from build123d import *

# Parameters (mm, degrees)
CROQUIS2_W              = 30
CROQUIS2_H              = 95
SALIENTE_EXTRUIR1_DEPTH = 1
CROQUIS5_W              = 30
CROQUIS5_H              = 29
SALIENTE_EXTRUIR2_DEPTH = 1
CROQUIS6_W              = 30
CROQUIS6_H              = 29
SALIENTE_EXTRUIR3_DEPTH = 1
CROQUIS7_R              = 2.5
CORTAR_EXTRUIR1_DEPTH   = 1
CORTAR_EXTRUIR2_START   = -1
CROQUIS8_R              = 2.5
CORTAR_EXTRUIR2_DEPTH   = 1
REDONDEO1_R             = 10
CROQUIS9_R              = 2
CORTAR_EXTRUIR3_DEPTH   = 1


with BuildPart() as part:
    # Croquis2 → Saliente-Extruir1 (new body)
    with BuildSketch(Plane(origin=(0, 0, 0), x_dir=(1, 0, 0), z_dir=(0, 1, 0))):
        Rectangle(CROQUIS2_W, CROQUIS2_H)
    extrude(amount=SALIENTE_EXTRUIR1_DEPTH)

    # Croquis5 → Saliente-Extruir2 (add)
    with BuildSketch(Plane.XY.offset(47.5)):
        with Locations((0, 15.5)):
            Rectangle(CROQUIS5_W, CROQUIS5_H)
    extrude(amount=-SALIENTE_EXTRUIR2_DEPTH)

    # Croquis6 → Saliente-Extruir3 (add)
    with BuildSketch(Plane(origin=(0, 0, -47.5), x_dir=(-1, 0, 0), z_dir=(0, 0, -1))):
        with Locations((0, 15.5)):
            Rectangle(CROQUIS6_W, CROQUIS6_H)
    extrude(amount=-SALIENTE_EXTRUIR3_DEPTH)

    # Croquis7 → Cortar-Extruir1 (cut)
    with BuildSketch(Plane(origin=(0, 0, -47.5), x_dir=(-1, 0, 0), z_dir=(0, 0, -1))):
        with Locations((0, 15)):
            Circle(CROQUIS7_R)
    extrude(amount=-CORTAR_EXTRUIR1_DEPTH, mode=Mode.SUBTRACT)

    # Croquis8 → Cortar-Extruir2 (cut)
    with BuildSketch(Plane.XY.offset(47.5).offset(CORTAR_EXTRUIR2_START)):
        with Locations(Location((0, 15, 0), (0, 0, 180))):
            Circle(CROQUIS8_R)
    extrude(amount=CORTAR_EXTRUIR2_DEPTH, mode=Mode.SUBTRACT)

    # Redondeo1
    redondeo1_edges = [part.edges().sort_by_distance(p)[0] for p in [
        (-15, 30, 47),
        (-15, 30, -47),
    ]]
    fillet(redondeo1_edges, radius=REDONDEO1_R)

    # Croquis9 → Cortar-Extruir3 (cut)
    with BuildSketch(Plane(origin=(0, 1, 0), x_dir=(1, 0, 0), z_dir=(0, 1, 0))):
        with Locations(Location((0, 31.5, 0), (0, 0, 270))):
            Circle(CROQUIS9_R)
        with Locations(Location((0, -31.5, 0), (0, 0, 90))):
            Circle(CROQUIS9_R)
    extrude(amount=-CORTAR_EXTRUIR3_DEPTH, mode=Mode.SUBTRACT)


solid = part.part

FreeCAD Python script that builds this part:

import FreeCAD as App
import Part
import Sketcher

V = App.Vector


def edges_at(feature, points):
    """Names of the edges that pass closest to the given points."""
    edges = feature.Shape.Edges
    near = lambda p: min(range(len(edges)), key=lambda i: edges[i].distToShape(Part.Vertex(*p))[0])
    return sorted({f"Edge{near(p) + 1}" for p in points})

doc = App.newDocument("Part")
params = doc.addObject("Spreadsheet::Sheet", "Params")
for row, (alias, value) in enumerate([
    ("sketch1_width", "30 mm"),
    ("sketch1_height", "95 mm"),
    ("pad1_length", "1 mm"),
    ("sketch2_width", "30 mm"),
    ("sketch2_height", "29 mm"),
    ("pad2_length", "1 mm"),
    ("sketch3_width", "30 mm"),
    ("sketch3_height", "29 mm"),
    ("pad3_length", "1 mm"),
    ("sketch4_diameter", "5 mm"),
    ("pocket1_length", "1 mm"),
    ("sketch5_diameter", "5 mm"),
    ("pocket2_length", "1 mm"),
    ("fillet_radius", "10 mm"),
    ("sketch6_diameter", "4 mm"),
    ("pocket3_length", "1 mm"),
], start=1):
    params.set(f"A{row}", alias)
    params.set(f"B{row}", "=" + value)
    params.setAlias(f"B{row}", alias)

body = doc.addObject("PartDesign::Body", "Body")

sketch1 = body.newObject("Sketcher::SketchObject", "Sketch")
sketch1.AttachmentSupport = (doc.getObject("XZ_Plane"), [""])
sketch1.MapMode = "FlatFace"
sketch1.addGeometry([
    Part.LineSegment(V(-15, -48, 0), V(-15, 48, 0)),
    Part.LineSegment(V(-15, 48, 0), V(15, 48, 0)),
    Part.LineSegment(V(15, 48, 0), V(15, -48, 0)),
    Part.LineSegment(V(15, -48, 0), V(-15, -48, 0)),
], False)
sketch1.addConstraint([
    Sketcher.Constraint("Coincident", 0, 2, 1, 1),
    Sketcher.Constraint("Coincident", 1, 2, 2, 1),
    Sketcher.Constraint("Coincident", 2, 2, 3, 1),
    Sketcher.Constraint("Coincident", 3, 2, 0, 1),
    Sketcher.Constraint("Vertical", 0),
    Sketcher.Constraint("Horizontal", 1),
    Sketcher.Constraint("Vertical", 2),
    Sketcher.Constraint("Horizontal", 3),
    Sketcher.Constraint("Symmetric", 0, 2, 2, 2, -1, 1),
    Sketcher.Constraint("DistanceX", 1, 1, 1, 2, 30.0),
    Sketcher.Constraint("DistanceY", 0, 1, 0, 2, 95.0),
])
sketch1.setExpression("Constraints[9]", "Params.sketch1_width")
sketch1.setExpression("Constraints[10]", "Params.sketch1_height")
pad1 = body.newObject("PartDesign::Pad", "Pad")
pad1.Profile = sketch1
pad1.setExpression("Length", "Params.pad1_length")
pad1.Reversed = True

sketch2 = body.newObject("Sketcher::SketchObject", "Sketch001")
sketch2.AttachmentSupport = (doc.getObject("XY_Plane"), [""])
sketch2.MapMode = "FlatFace"
sketch2.AttachmentOffset = App.Placement(V(0, 0, 47.5), App.Rotation())
sketch2.addGeometry([
    Part.LineSegment(V(-15, 30, 0), V(-15, 1, 0)),
    Part.LineSegment(V(-15, 1, 0), V(15, 1, 0)),
    Part.LineSegment(V(15, 1, 0), V(15, 30, 0)),
    Part.LineSegment(V(15, 30, 0), V(-15, 30, 0)),
], False)
sketch2.addConstraint([
    Sketcher.Constraint("Coincident", 0, 2, 1, 1),
    Sketcher.Constraint("Coincident", 1, 2, 2, 1),
    Sketcher.Constraint("Coincident", 2, 2, 3, 1),
    Sketcher.Constraint("Coincident", 3, 2, 0, 1),
    Sketcher.Constraint("Vertical", 0),
    Sketcher.Constraint("Horizontal", 1),
    Sketcher.Constraint("Vertical", 2),
    Sketcher.Constraint("Horizontal", 3),
    Sketcher.Constraint("DistanceX", 1, 1, 1, 2, 30.0),
    Sketcher.Constraint("DistanceY", 0, 2, 0, 1, 29.0),
    Sketcher.Constraint("DistanceX", 0, 2, -1, 1, 15.0),
    Sketcher.Constraint("DistanceY", -1, 1, 0, 2, 1.0),
])
sketch2.setExpression("Constraints[8]", "Params.sketch2_width")
sketch2.setExpression("Constraints[9]", "Params.sketch2_height")
pad2 = body.newObject("PartDesign::Pad", "Pad001")
pad2.Profile = sketch2
pad2.setExpression("Length", "Params.pad2_length")
pad2.Reversed = True

sketch3 = body.newObject("Sketcher::SketchObject", "Sketch002")
sketch3.AttachmentSupport = (doc.getObject("XY_Plane"), [""])
sketch3.MapMode = "FlatFace"
sketch3.AttachmentOffset = App.Placement(V(0, 0, -47.5), App.Rotation())
sketch3.addGeometry([
    Part.LineSegment(V(15, 30, 0), V(15, 1, 0)),
    Part.LineSegment(V(15, 1, 0), V(-15, 1, 0)),
    Part.LineSegment(V(-15, 1, 0), V(-15, 30, 0)),
    Part.LineSegment(V(-15, 30, 0), V(15, 30, 0)),
], False)
sketch3.addConstraint([
    Sketcher.Constraint("Coincident", 0, 2, 1, 1),
    Sketcher.Constraint("Coincident", 1, 2, 2, 1),
    Sketcher.Constraint("Coincident", 2, 2, 3, 1),
    Sketcher.Constraint("Coincident", 3, 2, 0, 1),
    Sketcher.Constraint("Vertical", 0),
    Sketcher.Constraint("Horizontal", 1),
    Sketcher.Constraint("Vertical", 2),
    Sketcher.Constraint("Horizontal", 3),
    Sketcher.Constraint("DistanceX", 1, 2, 1, 1, 30.0),
    Sketcher.Constraint("DistanceY", 0, 2, 0, 1, 29.0),
    Sketcher.Constraint("DistanceX", -1, 1, 0, 2, 15.0),
    Sketcher.Constraint("DistanceY", -1, 1, 0, 2, 1.0),
])
sketch3.setExpression("Constraints[8]", "Params.sketch3_width")
sketch3.setExpression("Constraints[9]", "Params.sketch3_height")
pad3 = body.newObject("PartDesign::Pad", "Pad002")
pad3.Profile = sketch3
pad3.setExpression("Length", "Params.pad3_length")

sketch4 = body.newObject("Sketcher::SketchObject", "Sketch003")
sketch4.AttachmentSupport = (doc.getObject("XY_Plane"), [""])
sketch4.MapMode = "FlatFace"
sketch4.AttachmentOffset = App.Placement(V(0, 0, -47.5), App.Rotation())
sketch4.addGeometry(Part.Circle(V(0, 15, 0), V(0, 0, 1), 2.5), False)
sketch4.addConstraint([
    Sketcher.Constraint("PointOnObject", 0, 3, -2),
    Sketcher.Constraint("Diameter", 0, 5.0),
    Sketcher.Constraint("DistanceY", -1, 1, 0, 3, 15.0),
])
sketch4.setExpression("Constraints[1]", "Params.sketch4_diameter")
pocket1 = body.newObject("PartDesign::Pocket", "Pocket")
pocket1.Profile = sketch4
pocket1.setExpression("Length", "Params.pocket1_length")
pocket1.Reversed = True

sketch5 = body.newObject("Sketcher::SketchObject", "Sketch004")
sketch5.AttachmentSupport = (doc.getObject("XY_Plane"), [""])
sketch5.MapMode = "FlatFace"
sketch5.AttachmentOffset = App.Placement(V(0, 0, 46.5), App.Rotation())
sketch5.addGeometry(Part.Circle(V(0, 15, 0), V(0, 0, 1), 2.5), False)
sketch5.addConstraint([
    Sketcher.Constraint("PointOnObject", 0, 3, -2),
    Sketcher.Constraint("Diameter", 0, 5.0),
    Sketcher.Constraint("DistanceY", -1, 1, 0, 3, 15.0),
])
sketch5.setExpression("Constraints[1]", "Params.sketch5_diameter")
pocket2 = body.newObject("PartDesign::Pocket", "Pocket001")
pocket2.Profile = sketch5
pocket2.setExpression("Length", "Params.pocket2_length")
pocket2.Reversed = True
doc.recompute()

fillet = body.newObject("PartDesign::Fillet", "Fillet")
fillet.Base = (pocket2, edges_at(pocket2, [(-15, 30, 47), (-15, 30, -47)]))
fillet.setExpression("Radius", "Params.fillet_radius")

sketch6 = body.newObject("Sketcher::SketchObject", "Sketch005")
sketch6.AttachmentSupport = (doc.getObject("XZ_Plane"), [""])
sketch6.MapMode = "FlatFace"
sketch6.AttachmentOffset = App.Placement(V(0, 0, -1), App.Rotation())
sketch6.addGeometry([
    Part.Circle(V(0, -31.5, 0), V(0, 0, 1), 2),
    Part.Circle(V(0, 31.5, 0), V(0, 0, 1), 2),
], False)
sketch6.addConstraint([
    Sketcher.Constraint("Equal", 0, 1),
    Sketcher.Constraint("Symmetric", 0, 3, 1, 3, -1, 1),
    Sketcher.Constraint("PointOnObject", 0, 3, -2),
    Sketcher.Constraint("Diameter", 0, 4.0),
    Sketcher.Constraint("DistanceY", 0, 3, 1, 3, 63.0),
])
sketch6.setExpression("Constraints[3]", "Params.sketch6_diameter")
pocket3 = body.newObject("PartDesign::Pocket", "Pocket002")
pocket3.Profile = sketch6
pocket3.setExpression("Length", "Params.pocket3_length")
pocket3.Reversed = True

doc.recompute()
